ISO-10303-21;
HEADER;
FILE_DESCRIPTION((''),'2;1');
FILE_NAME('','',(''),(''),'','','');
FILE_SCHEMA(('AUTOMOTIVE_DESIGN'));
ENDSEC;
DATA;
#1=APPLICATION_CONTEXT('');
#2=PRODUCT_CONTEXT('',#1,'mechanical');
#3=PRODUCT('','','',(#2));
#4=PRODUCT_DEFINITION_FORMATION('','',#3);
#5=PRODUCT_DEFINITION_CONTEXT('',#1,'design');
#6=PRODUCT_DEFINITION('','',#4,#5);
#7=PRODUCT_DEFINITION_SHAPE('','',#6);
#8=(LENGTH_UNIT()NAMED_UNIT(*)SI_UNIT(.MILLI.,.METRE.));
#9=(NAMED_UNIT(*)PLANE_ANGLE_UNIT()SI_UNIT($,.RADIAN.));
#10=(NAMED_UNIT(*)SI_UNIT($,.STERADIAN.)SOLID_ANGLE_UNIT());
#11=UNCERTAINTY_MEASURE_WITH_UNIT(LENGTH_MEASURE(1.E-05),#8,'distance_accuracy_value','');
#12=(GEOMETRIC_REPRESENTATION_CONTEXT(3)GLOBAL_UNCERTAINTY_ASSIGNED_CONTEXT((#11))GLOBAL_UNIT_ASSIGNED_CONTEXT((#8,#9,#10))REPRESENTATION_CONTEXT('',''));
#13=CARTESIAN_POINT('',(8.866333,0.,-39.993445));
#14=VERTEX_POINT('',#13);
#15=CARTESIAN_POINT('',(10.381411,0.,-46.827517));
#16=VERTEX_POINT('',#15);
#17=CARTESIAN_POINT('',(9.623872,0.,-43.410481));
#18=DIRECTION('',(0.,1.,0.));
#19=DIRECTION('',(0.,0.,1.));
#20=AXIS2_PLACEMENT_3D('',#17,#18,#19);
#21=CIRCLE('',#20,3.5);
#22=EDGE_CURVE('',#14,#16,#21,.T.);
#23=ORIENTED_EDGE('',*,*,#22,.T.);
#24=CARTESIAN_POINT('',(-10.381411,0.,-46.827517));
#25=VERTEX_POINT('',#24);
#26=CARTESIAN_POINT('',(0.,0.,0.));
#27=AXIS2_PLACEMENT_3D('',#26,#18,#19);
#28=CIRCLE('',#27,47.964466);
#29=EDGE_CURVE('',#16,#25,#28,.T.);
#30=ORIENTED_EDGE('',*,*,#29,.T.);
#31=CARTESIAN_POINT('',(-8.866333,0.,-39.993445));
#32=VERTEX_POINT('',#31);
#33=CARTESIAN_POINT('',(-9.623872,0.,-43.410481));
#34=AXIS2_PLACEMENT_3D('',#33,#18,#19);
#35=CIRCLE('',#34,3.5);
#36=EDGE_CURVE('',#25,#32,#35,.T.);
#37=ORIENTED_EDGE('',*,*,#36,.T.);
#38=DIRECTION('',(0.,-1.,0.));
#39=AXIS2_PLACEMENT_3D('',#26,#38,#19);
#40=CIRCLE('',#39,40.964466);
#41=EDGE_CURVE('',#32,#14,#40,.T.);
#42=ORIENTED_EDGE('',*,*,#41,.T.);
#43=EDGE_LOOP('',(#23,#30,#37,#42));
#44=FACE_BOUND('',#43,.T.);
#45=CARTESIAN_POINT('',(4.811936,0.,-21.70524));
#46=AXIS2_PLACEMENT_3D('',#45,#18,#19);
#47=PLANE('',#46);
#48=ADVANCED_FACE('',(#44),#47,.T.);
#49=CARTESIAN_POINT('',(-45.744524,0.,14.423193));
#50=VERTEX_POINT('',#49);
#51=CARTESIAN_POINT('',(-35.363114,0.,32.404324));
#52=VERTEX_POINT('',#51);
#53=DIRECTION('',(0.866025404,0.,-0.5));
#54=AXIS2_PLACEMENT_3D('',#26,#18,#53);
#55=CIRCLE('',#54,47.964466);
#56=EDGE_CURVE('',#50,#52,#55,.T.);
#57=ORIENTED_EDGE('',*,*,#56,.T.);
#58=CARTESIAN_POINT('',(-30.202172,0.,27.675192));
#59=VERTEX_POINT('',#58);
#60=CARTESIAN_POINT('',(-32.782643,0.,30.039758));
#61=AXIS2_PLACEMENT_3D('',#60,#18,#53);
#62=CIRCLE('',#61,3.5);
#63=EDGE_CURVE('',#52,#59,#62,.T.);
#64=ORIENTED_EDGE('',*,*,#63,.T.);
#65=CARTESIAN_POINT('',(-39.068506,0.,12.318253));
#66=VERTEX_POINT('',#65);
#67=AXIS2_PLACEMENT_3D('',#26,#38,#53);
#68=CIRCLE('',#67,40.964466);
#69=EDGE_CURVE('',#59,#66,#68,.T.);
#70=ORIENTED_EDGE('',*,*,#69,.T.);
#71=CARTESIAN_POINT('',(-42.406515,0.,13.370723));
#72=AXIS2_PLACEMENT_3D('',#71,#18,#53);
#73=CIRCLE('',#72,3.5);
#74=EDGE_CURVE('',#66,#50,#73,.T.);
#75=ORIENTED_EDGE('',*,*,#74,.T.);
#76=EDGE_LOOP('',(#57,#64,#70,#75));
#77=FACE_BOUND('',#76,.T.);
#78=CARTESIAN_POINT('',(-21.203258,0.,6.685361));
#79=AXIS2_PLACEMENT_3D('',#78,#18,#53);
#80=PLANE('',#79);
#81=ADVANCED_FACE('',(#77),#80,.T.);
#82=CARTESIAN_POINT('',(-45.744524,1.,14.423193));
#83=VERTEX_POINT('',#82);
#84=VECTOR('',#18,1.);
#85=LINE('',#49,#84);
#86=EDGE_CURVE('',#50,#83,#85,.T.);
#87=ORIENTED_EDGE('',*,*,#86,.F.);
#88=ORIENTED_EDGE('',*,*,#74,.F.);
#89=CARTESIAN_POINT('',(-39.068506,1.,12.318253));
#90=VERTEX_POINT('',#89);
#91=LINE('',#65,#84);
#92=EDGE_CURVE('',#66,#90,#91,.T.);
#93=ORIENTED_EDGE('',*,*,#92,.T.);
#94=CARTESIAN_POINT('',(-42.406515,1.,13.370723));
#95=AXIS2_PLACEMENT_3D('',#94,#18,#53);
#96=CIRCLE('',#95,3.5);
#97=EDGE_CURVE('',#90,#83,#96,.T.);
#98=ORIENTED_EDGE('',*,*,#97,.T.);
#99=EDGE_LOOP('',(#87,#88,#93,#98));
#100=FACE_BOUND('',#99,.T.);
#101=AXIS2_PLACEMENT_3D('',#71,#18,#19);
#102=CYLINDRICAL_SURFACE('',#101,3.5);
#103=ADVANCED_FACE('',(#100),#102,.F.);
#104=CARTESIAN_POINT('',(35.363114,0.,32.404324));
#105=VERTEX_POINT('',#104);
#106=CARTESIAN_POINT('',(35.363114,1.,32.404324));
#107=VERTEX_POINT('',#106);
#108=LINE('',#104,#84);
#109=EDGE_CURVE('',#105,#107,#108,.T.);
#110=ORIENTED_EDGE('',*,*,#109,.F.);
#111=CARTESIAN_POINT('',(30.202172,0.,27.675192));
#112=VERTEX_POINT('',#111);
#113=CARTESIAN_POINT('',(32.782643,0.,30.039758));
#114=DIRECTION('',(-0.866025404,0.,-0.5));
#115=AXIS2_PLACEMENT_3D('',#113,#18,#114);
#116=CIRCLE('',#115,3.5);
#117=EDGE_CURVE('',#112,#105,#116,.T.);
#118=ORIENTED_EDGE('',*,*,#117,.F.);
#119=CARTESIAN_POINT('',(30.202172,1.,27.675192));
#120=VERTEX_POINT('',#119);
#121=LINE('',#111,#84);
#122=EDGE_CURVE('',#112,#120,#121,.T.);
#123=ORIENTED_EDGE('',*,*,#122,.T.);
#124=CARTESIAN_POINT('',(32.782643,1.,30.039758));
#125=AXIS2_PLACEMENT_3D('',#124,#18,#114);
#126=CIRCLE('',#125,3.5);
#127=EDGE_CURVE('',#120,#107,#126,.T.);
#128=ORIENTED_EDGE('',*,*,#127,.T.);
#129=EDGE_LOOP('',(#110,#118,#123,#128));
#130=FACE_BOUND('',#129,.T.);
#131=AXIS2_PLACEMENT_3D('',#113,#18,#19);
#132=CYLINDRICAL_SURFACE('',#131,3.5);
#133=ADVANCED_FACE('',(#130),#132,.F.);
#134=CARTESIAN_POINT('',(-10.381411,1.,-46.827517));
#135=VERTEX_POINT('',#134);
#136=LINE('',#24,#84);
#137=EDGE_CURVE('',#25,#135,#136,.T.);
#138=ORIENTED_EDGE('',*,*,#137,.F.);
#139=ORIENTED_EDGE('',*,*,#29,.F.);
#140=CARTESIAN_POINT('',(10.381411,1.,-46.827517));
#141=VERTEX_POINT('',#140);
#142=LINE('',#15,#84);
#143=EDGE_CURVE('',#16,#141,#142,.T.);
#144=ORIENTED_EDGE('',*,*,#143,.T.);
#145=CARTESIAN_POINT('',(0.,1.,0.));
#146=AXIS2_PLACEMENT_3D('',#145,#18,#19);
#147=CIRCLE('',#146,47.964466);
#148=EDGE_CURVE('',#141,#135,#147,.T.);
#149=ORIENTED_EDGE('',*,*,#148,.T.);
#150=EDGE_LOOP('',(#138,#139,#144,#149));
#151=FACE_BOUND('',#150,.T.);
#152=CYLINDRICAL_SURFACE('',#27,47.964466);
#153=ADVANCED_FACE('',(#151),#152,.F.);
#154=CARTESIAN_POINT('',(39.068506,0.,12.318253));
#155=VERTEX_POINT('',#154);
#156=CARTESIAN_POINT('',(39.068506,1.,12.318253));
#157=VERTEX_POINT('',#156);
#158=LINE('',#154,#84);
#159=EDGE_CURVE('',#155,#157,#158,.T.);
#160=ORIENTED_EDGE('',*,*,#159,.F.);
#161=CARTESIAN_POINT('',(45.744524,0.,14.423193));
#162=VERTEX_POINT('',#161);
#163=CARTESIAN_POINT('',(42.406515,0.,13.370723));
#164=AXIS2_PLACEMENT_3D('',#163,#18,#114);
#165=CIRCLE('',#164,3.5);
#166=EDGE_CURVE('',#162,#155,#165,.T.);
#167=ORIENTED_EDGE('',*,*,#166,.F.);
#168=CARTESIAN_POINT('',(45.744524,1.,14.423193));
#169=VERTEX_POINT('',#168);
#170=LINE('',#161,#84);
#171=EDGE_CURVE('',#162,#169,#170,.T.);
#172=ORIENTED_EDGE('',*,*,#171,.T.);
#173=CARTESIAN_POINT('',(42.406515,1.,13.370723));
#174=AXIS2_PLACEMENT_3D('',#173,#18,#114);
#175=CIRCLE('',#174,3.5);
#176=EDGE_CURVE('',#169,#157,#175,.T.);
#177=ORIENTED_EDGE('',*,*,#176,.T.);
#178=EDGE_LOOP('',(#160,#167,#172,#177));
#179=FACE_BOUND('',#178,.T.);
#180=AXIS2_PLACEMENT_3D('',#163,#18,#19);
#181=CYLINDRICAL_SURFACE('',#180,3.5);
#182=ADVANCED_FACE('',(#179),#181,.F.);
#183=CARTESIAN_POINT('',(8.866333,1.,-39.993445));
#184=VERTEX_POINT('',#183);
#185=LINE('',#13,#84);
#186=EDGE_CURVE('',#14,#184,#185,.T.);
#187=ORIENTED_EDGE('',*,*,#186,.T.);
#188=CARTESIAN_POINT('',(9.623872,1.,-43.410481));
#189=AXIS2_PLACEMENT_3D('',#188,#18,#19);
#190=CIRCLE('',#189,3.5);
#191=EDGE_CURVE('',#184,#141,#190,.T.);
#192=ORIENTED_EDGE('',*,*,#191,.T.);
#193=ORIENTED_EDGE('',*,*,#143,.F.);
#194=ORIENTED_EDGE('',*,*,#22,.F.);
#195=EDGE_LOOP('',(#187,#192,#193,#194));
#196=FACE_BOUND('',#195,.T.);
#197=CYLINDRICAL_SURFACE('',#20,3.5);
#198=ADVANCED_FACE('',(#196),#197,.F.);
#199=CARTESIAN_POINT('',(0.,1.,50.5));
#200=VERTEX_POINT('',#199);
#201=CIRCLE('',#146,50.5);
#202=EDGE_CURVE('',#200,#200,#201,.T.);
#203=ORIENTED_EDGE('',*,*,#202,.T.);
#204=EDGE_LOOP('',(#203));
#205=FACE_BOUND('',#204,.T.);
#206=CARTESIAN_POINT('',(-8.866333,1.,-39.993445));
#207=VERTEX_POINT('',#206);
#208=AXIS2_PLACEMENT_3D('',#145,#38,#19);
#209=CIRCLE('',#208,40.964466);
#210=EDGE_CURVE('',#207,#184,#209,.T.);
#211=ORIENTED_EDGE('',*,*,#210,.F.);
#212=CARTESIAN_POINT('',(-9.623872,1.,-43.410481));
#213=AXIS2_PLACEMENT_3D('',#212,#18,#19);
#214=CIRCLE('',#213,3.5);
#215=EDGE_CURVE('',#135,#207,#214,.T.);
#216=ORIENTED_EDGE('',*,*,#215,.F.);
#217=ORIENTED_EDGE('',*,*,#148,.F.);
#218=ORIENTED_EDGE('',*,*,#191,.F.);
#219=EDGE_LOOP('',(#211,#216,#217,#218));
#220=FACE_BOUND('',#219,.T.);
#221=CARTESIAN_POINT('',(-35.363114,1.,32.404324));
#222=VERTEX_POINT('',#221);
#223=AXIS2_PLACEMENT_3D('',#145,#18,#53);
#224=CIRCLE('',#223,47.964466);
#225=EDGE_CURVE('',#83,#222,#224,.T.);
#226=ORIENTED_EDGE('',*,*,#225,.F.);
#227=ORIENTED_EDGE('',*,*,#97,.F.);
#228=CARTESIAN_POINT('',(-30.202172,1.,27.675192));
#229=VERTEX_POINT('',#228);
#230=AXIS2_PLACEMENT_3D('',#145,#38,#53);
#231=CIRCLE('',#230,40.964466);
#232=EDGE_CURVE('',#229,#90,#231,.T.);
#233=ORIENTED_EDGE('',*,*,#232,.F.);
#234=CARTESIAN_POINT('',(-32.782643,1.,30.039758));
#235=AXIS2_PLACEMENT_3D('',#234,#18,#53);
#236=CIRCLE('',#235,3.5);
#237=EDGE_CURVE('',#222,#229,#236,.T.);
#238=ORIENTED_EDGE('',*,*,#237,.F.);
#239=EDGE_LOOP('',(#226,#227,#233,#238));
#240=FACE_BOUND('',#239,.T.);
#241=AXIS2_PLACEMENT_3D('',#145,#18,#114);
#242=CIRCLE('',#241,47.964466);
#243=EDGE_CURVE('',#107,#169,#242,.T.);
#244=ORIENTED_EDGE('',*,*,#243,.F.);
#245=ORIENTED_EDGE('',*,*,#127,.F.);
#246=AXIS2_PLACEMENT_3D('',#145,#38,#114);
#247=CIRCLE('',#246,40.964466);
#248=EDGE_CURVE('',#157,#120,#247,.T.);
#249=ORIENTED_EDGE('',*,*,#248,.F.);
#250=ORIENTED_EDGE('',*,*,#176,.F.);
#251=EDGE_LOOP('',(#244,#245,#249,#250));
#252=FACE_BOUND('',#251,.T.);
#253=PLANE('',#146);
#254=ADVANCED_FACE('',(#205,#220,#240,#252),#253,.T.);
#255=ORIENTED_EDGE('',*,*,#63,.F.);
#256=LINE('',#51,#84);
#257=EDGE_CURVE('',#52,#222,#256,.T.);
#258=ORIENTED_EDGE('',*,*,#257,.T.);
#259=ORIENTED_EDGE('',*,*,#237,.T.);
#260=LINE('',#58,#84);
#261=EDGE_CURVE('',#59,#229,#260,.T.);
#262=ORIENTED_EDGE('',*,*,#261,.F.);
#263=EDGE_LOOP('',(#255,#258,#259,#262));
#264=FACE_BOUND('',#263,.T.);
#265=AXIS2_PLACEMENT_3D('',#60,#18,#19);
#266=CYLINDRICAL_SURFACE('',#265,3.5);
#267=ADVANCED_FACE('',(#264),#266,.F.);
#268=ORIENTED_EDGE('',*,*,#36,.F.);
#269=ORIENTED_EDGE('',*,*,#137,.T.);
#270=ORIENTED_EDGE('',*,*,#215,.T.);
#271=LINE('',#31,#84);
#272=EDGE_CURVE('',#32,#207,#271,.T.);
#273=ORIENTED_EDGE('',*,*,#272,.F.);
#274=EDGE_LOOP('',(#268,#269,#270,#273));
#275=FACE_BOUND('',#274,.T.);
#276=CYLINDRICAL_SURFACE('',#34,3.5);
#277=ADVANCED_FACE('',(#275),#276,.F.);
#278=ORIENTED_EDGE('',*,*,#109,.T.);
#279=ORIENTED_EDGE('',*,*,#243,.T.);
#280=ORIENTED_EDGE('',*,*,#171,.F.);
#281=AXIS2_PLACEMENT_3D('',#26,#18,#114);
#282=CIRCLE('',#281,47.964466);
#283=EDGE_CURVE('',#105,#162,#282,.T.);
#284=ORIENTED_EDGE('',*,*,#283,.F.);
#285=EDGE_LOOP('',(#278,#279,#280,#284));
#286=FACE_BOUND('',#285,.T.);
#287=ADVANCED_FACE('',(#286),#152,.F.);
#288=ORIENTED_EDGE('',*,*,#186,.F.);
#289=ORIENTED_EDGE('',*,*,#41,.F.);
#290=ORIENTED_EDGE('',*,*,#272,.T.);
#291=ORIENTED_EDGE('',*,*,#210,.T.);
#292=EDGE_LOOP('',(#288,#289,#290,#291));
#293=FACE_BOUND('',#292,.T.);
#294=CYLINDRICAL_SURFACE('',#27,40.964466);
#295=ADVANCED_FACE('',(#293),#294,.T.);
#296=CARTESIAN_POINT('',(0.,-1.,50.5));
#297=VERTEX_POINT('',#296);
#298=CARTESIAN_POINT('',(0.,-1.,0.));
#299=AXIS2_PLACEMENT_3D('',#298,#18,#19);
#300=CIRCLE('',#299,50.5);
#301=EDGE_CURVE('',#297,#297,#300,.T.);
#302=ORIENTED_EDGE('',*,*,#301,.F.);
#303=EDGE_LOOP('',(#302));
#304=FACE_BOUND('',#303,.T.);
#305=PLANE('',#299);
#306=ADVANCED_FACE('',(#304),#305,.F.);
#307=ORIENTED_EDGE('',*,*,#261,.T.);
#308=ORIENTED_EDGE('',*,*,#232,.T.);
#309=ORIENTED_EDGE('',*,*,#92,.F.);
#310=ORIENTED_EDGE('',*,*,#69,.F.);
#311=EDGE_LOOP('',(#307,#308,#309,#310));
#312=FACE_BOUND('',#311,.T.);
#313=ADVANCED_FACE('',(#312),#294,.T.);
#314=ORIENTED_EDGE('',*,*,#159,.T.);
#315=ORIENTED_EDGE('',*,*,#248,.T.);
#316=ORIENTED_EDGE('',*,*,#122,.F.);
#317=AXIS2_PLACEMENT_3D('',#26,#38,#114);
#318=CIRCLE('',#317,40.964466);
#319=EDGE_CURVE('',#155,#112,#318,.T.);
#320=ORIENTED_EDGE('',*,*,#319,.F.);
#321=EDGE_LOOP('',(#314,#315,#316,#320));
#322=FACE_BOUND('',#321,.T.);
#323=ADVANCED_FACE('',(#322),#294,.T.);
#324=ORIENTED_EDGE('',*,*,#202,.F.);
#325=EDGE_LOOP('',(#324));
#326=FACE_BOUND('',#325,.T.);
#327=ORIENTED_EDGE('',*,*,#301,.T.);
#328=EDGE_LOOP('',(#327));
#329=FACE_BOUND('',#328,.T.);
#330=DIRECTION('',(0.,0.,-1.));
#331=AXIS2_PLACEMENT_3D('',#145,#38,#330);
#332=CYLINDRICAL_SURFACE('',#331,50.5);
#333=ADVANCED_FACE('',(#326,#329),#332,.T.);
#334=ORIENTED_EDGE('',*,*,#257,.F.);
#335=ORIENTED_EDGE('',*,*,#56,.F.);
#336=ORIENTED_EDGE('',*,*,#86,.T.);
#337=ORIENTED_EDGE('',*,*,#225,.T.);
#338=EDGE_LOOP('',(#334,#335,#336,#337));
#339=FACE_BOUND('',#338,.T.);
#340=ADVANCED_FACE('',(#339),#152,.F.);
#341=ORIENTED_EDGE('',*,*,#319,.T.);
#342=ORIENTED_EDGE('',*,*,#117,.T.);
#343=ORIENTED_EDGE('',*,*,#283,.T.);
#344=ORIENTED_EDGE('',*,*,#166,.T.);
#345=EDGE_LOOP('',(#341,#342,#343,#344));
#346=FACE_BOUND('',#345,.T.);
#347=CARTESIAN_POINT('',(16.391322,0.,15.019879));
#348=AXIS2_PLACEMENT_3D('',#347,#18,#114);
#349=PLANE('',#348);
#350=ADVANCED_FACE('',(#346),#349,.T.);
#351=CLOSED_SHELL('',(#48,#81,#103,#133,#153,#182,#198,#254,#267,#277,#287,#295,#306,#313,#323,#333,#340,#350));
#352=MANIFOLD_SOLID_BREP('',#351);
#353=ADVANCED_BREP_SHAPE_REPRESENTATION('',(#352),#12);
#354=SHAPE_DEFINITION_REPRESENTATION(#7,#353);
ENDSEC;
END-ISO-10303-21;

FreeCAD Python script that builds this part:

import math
import FreeCAD as App
import Part
import Sketcher

doc = App.newDocument("Part")
params = doc.addObject("Spreadsheet::Sheet", "Params")
for row, (alias, value) in enumerate([
    ("sketch1_diameter", "101 mm"),
    ("pad1_length", "2 mm"),
    ("sketch2_radius", "3.5 mm"),
    ("pocket1_length", "1 mm"),
], start=1):
    params.set(f"A{row}", alias)
    params.set(f"B{row}", "=" + value)
    params.setAlias(f"B{row}", alias)

body = doc.addObject("PartDesign::Body", "Body")

sketch1 = body.newObject("Sketcher::SketchObject", "Sketch")
sketch1.AttachmentSupport = (doc.getObject("XZ_Plane"), [""])
sketch1.MapMode = "FlatFace"
sketch1.addGeometry(Part.Circle(App.Vector(0, 0, 0), App.Vector(0, 0, 1), 50), False)
sketch1.addConstraint([
    Sketcher.Constraint("Coincident", 0, 3, -1, 1),
    Sketcher.Constraint("Diameter", 0, 101.0),
])
sketch1.setExpression("Constraints[1]", "Params.sketch1_diameter")
pad1 = body.newObject("PartDesign::Pad", "Pad")
pad1.Profile = sketch1
pad1.setExpression("Length", "Params.pad1_length")
pad1.Midplane = True

sketch2 = body.newObject("Sketcher::SketchObject", "Sketch001")
sketch2.AttachmentSupport = (doc.getObject("XZ_Plane"), [""])
sketch2.MapMode = "FlatFace"
sketch2.AttachmentOffset = App.Placement(App.Vector(0, 0, -1), App.Rotation())
sketch2.addGeometry([
    Part.ArcOfCircle(Part.Circle(App.Vector(0, 0, 0), App.Vector(0, 0, 1), 48), math.radians(-103), math.radians(-77)),
    Part.ArcOfCircle(Part.Circle(App.Vector(-9.6, -43.4, 0), App.Vector(0, 0, 1), 3.5), math.radians(78), math.radians(257)),
    Part.ArcOfCircle(Part.Circle(App.Vector(0, 0, 0), App.Vector(0, 0, 1), 41), math.radians(-103), math.radians(-77)),
    Part.ArcOfCircle(Part.Circle(App.Vector(9.6, -43.4, 0), App.Vector(0, 0, 1), 3.5), math.radians(-77), math.radians(102)),
], False)
sketch2.addConstraint([
    Sketcher.Constraint("Tangent", 0, 1, 1, 2),
    Sketcher.Constraint("Tangent", 1, 1, 2, 1),
    Sketcher.Constraint("Tangent", 2, 2, 3, 2),
    Sketcher.Constraint("Tangent", 3, 1, 0, 2),
    Sketcher.Constraint("Coincident", 0, 3, -1, 1),
    Sketcher.Constraint("Coincident", 2, 3, -1, 1),
    Sketcher.Constraint("Horizontal", 1, 3, 3, 3),
    Sketcher.Constraint("Radius", 1, 3.5),
    Sketcher.Constraint("Radius", 0, 47.964466),
    Sketcher.Constraint("DistanceX", 1, 3, -1, 1, 9.623872),
])
sketch2.setExpression("Constraints[7]", "Params.sketch2_radius")
pocket1 = body.newObject("PartDesign::Pocket", "Pocket")
pocket1.Profile = sketch2
pocket1.setExpression("Length", "Params.pocket1_length")
pocket1.Reversed = True
doc.recompute()

polarpattern = body.newObject("PartDesign::PolarPattern", "PolarPattern")
polarpattern.Originals = [pocket1]
polarpattern.Axis = (doc.getObject("Y_Axis"), [""])
polarpattern.Angle = 360
polarpattern.Occurrences = 3
body.Tip = polarpattern

doc.recompute()
